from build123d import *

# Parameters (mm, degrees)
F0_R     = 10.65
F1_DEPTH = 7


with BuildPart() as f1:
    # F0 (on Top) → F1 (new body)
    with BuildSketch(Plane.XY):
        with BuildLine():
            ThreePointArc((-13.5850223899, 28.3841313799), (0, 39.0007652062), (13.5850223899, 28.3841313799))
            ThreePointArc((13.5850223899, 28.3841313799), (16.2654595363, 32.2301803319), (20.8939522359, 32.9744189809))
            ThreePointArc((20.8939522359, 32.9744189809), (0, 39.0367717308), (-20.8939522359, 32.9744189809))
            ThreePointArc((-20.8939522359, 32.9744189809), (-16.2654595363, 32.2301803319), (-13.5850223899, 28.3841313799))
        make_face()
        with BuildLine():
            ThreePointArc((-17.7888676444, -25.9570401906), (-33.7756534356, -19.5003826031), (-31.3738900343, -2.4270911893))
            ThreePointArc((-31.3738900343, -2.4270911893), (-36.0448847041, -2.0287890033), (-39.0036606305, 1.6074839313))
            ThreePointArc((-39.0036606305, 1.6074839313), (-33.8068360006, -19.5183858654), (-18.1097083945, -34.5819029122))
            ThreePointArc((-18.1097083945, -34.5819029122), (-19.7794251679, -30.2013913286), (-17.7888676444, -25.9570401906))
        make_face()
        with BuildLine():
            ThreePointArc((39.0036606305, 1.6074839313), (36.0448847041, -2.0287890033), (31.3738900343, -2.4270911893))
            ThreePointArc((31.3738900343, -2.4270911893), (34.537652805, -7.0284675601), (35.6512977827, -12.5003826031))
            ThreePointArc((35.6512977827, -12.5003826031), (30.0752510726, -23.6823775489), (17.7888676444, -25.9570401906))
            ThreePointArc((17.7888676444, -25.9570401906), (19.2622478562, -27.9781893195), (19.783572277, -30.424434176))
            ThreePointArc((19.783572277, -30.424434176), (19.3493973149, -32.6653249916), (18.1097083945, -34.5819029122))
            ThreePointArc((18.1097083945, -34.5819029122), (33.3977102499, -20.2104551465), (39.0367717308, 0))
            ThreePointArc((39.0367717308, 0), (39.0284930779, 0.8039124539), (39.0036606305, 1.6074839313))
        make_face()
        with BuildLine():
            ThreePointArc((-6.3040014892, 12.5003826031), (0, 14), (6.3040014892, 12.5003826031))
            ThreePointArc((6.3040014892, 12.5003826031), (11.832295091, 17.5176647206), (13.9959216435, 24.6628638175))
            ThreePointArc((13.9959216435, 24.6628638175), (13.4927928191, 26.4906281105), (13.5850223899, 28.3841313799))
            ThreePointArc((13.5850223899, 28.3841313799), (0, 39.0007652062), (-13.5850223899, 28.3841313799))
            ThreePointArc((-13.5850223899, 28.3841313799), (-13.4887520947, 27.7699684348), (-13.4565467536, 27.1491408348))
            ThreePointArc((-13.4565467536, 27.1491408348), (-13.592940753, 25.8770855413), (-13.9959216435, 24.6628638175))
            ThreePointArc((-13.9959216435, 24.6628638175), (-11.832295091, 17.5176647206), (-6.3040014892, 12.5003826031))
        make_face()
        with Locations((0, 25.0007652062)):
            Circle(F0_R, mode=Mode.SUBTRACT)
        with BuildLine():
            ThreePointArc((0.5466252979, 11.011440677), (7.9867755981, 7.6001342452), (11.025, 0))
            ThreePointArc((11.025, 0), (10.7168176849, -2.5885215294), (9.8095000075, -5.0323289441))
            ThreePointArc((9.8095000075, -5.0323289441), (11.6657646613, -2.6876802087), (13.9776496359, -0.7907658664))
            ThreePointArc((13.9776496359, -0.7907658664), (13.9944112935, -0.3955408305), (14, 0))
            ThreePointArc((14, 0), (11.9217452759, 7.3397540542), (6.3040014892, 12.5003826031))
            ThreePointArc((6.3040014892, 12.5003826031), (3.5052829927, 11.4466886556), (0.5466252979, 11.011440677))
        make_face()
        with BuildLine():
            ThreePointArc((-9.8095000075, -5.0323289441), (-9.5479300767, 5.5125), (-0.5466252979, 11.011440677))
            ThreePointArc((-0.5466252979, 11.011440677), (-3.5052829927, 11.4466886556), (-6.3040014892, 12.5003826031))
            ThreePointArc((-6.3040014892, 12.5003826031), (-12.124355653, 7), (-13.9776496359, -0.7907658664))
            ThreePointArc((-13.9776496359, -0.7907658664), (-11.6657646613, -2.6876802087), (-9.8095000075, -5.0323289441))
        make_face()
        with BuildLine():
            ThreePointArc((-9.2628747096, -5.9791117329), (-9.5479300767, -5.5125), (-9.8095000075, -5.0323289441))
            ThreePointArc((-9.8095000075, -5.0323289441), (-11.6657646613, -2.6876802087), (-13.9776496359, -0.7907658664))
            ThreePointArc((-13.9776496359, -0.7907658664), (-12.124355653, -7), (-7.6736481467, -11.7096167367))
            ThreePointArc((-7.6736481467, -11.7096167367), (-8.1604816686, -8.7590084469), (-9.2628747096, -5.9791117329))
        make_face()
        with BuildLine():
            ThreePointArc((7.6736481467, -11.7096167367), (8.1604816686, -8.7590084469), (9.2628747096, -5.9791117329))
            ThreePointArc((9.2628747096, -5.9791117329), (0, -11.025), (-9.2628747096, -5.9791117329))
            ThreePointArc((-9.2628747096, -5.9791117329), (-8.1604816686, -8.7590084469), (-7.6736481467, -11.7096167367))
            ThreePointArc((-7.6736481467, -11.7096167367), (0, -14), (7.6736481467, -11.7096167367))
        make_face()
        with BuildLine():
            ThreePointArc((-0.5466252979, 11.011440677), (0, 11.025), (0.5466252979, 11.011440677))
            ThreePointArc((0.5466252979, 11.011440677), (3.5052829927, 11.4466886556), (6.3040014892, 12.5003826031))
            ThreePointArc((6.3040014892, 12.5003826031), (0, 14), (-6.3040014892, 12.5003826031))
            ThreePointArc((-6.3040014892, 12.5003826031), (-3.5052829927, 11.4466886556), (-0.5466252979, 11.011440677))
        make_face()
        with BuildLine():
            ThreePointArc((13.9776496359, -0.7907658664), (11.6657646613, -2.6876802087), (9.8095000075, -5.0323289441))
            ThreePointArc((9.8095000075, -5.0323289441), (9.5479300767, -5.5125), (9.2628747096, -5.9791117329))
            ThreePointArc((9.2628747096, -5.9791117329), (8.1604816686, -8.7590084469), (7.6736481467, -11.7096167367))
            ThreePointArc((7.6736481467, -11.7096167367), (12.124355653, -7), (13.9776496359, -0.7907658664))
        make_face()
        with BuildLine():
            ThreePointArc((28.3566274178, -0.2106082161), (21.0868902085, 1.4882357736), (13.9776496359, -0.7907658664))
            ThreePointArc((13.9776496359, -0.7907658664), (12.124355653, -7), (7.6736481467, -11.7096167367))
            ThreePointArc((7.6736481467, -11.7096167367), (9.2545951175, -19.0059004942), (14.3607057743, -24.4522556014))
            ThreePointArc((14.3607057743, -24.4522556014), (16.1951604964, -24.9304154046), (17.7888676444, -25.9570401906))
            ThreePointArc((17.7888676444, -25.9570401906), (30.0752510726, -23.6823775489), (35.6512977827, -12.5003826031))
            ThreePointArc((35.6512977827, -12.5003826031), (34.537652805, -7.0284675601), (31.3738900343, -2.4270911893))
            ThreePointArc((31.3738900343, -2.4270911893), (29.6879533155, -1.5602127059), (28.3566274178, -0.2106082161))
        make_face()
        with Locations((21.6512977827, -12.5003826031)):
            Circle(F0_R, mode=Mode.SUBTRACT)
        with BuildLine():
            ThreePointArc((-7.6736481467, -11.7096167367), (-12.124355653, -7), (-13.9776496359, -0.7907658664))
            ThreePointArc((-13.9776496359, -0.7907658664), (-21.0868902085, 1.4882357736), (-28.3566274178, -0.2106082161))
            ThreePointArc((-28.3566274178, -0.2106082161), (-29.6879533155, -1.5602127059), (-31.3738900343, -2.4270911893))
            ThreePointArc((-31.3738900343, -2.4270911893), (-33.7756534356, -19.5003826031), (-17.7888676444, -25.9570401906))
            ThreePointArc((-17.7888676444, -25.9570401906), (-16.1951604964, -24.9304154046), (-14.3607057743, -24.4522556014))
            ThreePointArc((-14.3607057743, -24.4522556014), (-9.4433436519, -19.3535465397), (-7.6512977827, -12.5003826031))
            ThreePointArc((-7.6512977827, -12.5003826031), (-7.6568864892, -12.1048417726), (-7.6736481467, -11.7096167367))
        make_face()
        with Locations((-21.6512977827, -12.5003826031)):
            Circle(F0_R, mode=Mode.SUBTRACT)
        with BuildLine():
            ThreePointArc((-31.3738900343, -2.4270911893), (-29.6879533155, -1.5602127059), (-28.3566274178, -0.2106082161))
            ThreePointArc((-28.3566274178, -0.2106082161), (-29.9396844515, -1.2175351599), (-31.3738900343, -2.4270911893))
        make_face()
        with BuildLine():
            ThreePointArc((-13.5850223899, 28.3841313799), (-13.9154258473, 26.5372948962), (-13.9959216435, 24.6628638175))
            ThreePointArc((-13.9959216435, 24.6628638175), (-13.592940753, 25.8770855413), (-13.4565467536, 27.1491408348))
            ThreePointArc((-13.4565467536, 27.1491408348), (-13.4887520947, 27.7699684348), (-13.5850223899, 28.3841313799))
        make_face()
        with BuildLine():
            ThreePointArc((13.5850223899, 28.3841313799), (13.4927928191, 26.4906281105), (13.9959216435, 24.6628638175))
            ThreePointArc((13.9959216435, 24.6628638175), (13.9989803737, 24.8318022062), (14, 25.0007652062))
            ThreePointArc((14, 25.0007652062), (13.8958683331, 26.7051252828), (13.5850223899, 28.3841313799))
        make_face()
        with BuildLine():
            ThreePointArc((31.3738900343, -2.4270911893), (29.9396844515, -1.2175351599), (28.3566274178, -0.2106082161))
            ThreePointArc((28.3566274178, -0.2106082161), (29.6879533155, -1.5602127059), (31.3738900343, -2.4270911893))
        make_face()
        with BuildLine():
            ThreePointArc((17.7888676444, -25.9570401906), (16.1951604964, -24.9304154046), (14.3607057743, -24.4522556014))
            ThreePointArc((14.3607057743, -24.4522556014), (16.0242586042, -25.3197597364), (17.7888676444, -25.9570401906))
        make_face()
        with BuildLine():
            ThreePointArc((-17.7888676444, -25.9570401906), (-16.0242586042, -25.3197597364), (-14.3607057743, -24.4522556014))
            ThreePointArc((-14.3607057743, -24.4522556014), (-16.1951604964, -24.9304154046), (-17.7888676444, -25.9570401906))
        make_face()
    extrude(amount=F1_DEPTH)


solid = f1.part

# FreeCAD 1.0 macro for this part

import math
import FreeCAD as App
import Part
import Sketcher
from FreeCAD import Vector

doc = App.newDocument("Part")
body = doc.addObject("PartDesign::Body", "Body")

sketch1 = doc.addObject("Sketcher::SketchObject", "Sketch")
body.addObject(sketch1)
sketch1.AttachmentSupport = (doc.XY_Plane, [""])
sketch1.MapMode = "FlatFace"
sketch1.addGeometry(Part.ArcOfCircle(Part.Circle(Vector(19.46, 27.15, 0), Vector(0, 0, 1), 6), math.radians(76), math.radians(168)), False)
sketch1.addGeometry(Part.ArcOfCircle(Part.Circle(Vector(0, 0, 0), Vector(0, 0, 1), 39.04), math.radians(58), math.radians(122)), False)
sketch1.addGeometry(Part.ArcOfCircle(Part.Circle(Vector(-19.46, 27.15, 0), Vector(0, 0, 1), 6), math.radians(12), math.radians(104)), False)
sketch1.addGeometry(Part.ArcOfCircle(Part.Circle(Vector(0, 25, 0), Vector(0, 0, 1), 14), math.radians(166.01), math.radians(181.38)), False)
sketch1.addGeometry(Part.ArcOfCircle(Part.Circle(Vector(0, 25, 0), Vector(0, 0, 1), 14), math.radians(-179), math.radians(-117)), False)
sketch1.addGeometry(Part.ArcOfCircle(Part.Circle(Vector(0, 0, 0), Vector(0, 0, 1), 14), math.radians(117), math.radians(183)), False)
sketch1.addGeometry(Part.ArcOfCircle(Part.Circle(Vector(-21.65, -12.5, 0), Vector(0, 0, 1), 14), math.radians(57), math.radians(119)), False)
sketch1.addGeometry(Part.ArcOfCircle(Part.Circle(Vector(-21.65, -12.5, 0), Vector(0, 0, 1), 14), math.radians(118.62), math.radians(133.99)), False)
sketch1.addGeometry(Part.ArcOfCircle(Part.Circle(Vector(-33.24, 3.28, 0), Vector(0, 0, 1), 6), math.radians(-164), math.radians(-72)), False)
sketch1.addGeometry(Part.ArcOfCircle(Part.Circle(Vector(0, 0, 0), Vector(0, 0, 1), 39.04), math.radians(178), math.radians(242)), False)
sketch1.addGeometry(Part.ArcOfCircle(Part.Circle(Vector(-13.78, -30.42, 0), Vector(0, 0, 1), 6), math.radians(132), math.radians(224)), False)
sketch1.addGeometry(Part.ArcOfCircle(Part.Circle(Vector(-21.65, -12.5, 0), Vector(0, 0, 1), 14), math.radians(-73.99), math.radians(-58.62)), False)
sketch1.addGeometry(Part.ArcOfCircle(Part.Circle(Vector(-21.65, -12.5, 0), Vector(0, 0, 1), 14), math.radians(-59), math.radians(0)), False)
sketch1.addGeometry(Part.ArcOfCircle(Part.Circle(Vector(-21.65, -12.5, 0), Vector(0, 0, 1), 14), math.radians(0), math.radians(3.24)), False)
sketch1.addGeometry(Part.ArcOfCircle(Part.Circle(Vector(0, 0, 0), Vector(0, 0, 1), 14), math.radians(-123), math.radians(-57)), False)
sketch1.addGeometry(Part.ArcOfCircle(Part.Circle(Vector(21.65, -12.5, 0), Vector(0, 0, 1), 14), math.radians(177), math.radians(239)), False)
sketch1.addGeometry(Part.ArcOfCircle(Part.Circle(Vector(21.65, -12.5, 0), Vector(0, 0, 1), 14), math.radians(-121.38), math.radians(-106.01)), False)
sketch1.addGeometry(Part.ArcOfCircle(Part.Circle(Vector(13.78, -30.42, 0), Vector(0, 0, 1), 6), math.radians(0), math.radians(48)), False)
sketch1.addGeometry(Part.ArcOfCircle(Part.Circle(Vector(13.78, -30.42, 0), Vector(0, 0, 1), 6), math.radians(-44), math.radians(0)), False)
sketch1.addGeometry(Part.ArcOfCircle(Part.Circle(Vector(0, 0, 0), Vector(0, 0, 1), 39.04), math.radians(-62), math.radians(0)), False)
sketch1.addGeometry(Part.ArcOfCircle(Part.Circle(Vector(0, 0, 0), Vector(0, 0, 1), 39.04), math.radians(0), math.radians(2.36)), False)
sketch1.addGeometry(Part.ArcOfCircle(Part.Circle(Vector(33.24, 3.28, 0), Vector(0, 0, 1), 6), math.radians(-108), math.radians(-16)), False)
sketch1.addGeometry(Part.ArcOfCircle(Part.Circle(Vector(21.65, -12.5, 0), Vector(0, 0, 1), 14), math.radians(46.01), math.radians(61.38)), False)
sketch1.addGeometry(Part.ArcOfCircle(Part.Circle(Vector(21.65, -12.5, 0), Vector(0, 0, 1), 14), math.radians(61), math.radians(123)), False)
sketch1.addGeometry(Part.ArcOfCircle(Part.Circle(Vector(0, 0, 0), Vector(0, 0, 1), 14), math.radians(-3.24), math.radians(0)), False)
sketch1.addGeometry(Part.ArcOfCircle(Part.Circle(Vector(0, 0, 0), Vector(0, 0, 1), 14), math.radians(0), math.radians(63)), False)
sketch1.addGeometry(Part.ArcOfCircle(Part.Circle(Vector(0, 25, 0), Vector(0, 0, 1), 14), math.radians(-63), math.radians(-1)), False)
sketch1.addGeometry(Part.ArcOfCircle(Part.Circle(Vector(0, 25, 0), Vector(0, 0, 1), 14), math.radians(-1.38), math.radians(0)), False)
sketch1.addGeometry(Part.ArcOfCircle(Part.Circle(Vector(0, 25, 0), Vector(0, 0, 1), 14), math.radians(0), math.radians(13.99)), False)
sketch1.addGeometry(Part.Circle(Vector(-21.65, -12.5, 0), Vector(0, 0, 1), 10.65), False)
sketch1.addGeometry(Part.Circle(Vector(21.65, -12.5, 0), Vector(0, 0, 1), 10.65), False)
sketch1.addGeometry(Part.ArcOfCircle(Part.Circle(Vector(0, 0, 0), Vector(0, 0, 1), 11.03), math.radians(-147), math.radians(-33)), False)
sketch1.addGeometry(Part.ArcOfCircle(Part.Circle(Vector(0, 0, 0), Vector(0, 0, 1), 11.02), math.radians(-152.84), math.radians(-147.16)), False)
sketch1.addGeometry(Part.ArcOfCircle(Part.Circle(Vector(0, 0, 0), Vector(0, 0, 1), 11.03), math.radians(93), math.radians(207)), False)
sketch1.addGeometry(Part.ArcOfCircle(Part.Circle(Vector(0, 0, 0), Vector(0, 0, 1), 11.02), math.radians(87.16), math.radians(92.84)), False)
sketch1.addGeometry(Part.ArcOfCircle(Part.Circle(Vector(0, 0, 0), Vector(0, 0, 1), 11.03), math.radians(0), math.radians(87)), False)
sketch1.addGeometry(Part.ArcOfCircle(Part.Circle(Vector(0, 0, 0), Vector(0, 0, 1), 11.03), math.radians(-27), math.radians(0)), False)
sketch1.addGeometry(Part.ArcOfCircle(Part.Circle(Vector(0, 0, 0), Vector(0, 0, 1), 11.02), math.radians(-32.84), math.radians(-27.16)), False)
sketch1.addGeometry(Part.Circle(Vector(0, 25, 0), Vector(0, 0, 1), 10.65), False)
sketch1.addConstraint(Sketcher.Constraint("Coincident", 0, 1, 1, 1))
sketch1.addConstraint(Sketcher.Constraint("Coincident", 1, 2, 2, 2))
sketch1.addConstraint(Sketcher.Constraint("Coincident", 2, 1, 3, 1))
sketch1.addConstraint(Sketcher.Constraint("Tangent", 3, 2, 4, 1))
sketch1.addConstraint(Sketcher.Constraint("Coincident", 4, 2, 5, 1))
sketch1.addConstraint(Sketcher.Constraint("Coincident", 5, 2, 6, 1))
sketch1.addConstraint(Sketcher.Constraint("Tangent", 6, 2, 7, 1))
sketch1.addConstraint(Sketcher.Constraint("Coincident", 7, 2, 8, 2))
sketch1.addConstraint(Sketcher.Constraint("Coincident", 8, 1, 9, 1))
sketch1.addConstraint(Sketcher.Constraint("Coincident", 9, 2, 10, 2))
sketch1.addConstraint(Sketcher.Constraint("Coincident", 10, 1, 11, 1))
sketch1.addConstraint(Sketcher.Constraint("Tangent", 11, 2, 12, 1))
sketch1.addConstraint(Sketcher.Constraint("Tangent", 12, 2, 13, 1))
sketch1.addConstraint(Sketcher.Constraint("Coincident", 13, 2, 14, 1))
sketch1.addConstraint(Sketcher.Constraint("Coincident", 14, 2, 15, 1))
sketch1.addConstraint(Sketcher.Constraint("Tangent", 15, 2, 16, 1))
sketch1.addConstraint(Sketcher.Constraint("Coincident", 16, 2, 17, 2))
sketch1.addConstraint(Sketcher.Constraint("Tangent", 17, 1, 18, 2))
sketch1.addConstraint(Sketcher.Constraint("Coincident", 18, 1, 19, 1))
sketch1.addConstraint(Sketcher.Constraint("Tangent", 19, 2, 20, 1))
sketch1.addConstraint(Sketcher.Constraint("Coincident", 20, 2, 21, 2))
sketch1.addConstraint(Sketcher.Constraint("Coincident", 21, 1, 22, 1))
sketch1.addConstraint(Sketcher.Constraint("Tangent", 22, 2, 23, 1))
sketch1.addConstraint(Sketcher.Constraint("Coincident", 23, 2, 24, 1))
sketch1.addConstraint(Sketcher.Constraint("Tangent", 24, 2, 25, 1))
sketch1.addConstraint(Sketcher.Constraint("Coincident", 25, 2, 26, 1))
sketch1.addConstraint(Sketcher.Constraint("Tangent", 26, 2, 27, 1))
sketch1.addConstraint(Sketcher.Constraint("Tangent", 27, 2, 28, 1))
sketch1.addConstraint(Sketcher.Constraint("Coincident", 28, 2, 0, 2))
sketch1.addConstraint(Sketcher.Constraint("Tangent", 31, 1, 32, 2))
sketch1.addConstraint(Sketcher.Constraint("Tangent", 32, 1, 33, 2))
sketch1.addConstraint(Sketcher.Constraint("Tangent", 33, 1, 34, 2))
sketch1.addConstraint(Sketcher.Constraint("Tangent", 34, 1, 35, 2))
sketch1.addConstraint(Sketcher.Constraint("Tangent", 35, 1, 36, 2))
sketch1.addConstraint(Sketcher.Constraint("Tangent", 36, 1, 37, 2))
sketch1.addConstraint(Sketcher.Constraint("Tangent", 37, 1, 31, 2))
sketch1.addConstraint(Sketcher.Constraint("Coincident", 1, 3, -1, 1))
sketch1.addConstraint(Sketcher.Constraint("Coincident", 5, 3, -1, 1))
sketch1.addConstraint(Sketcher.Constraint("Coincident", 9, 3, -1, 1))
sketch1.addConstraint(Sketcher.Constraint("Coincident", 14, 3, -1, 1))
sketch1.addConstraint(Sketcher.Constraint("Coincident", 19, 3, -1, 1))
sketch1.addConstraint(Sketcher.Constraint("Coincident", 24, 3, -1, 1))
sketch1.addConstraint(Sketcher.Constraint("Coincident", 31, 3, -1, 1))
sketch1.addConstraint(Sketcher.Constraint("Coincident", 33, 3, -1, 1))
sketch1.addConstraint(Sketcher.Constraint("Coincident", 35, 3, -1, 1))
sketch1.addConstraint(Sketcher.Constraint("Coincident", 11, 3, 6, 3))
sketch1.addConstraint(Sketcher.Constraint("Coincident", 13, 3, 6, 3))
sketch1.addConstraint(Sketcher.Constraint("Coincident", 22, 3, 15, 3))
sketch1.addConstraint(Sketcher.Constraint("Coincident", 26, 3, 3, 3))
sketch1.addConstraint(Sketcher.Constraint("Coincident", 28, 3, 3, 3))
sketch1.addConstraint(Sketcher.Constraint("Coincident", 29, 3, 6, 3))
sketch1.addConstraint(Sketcher.Constraint("Coincident", 30, 3, 15, 3))
sketch1.addConstraint(Sketcher.Constraint("Coincident", 38, 3, 3, 3))
sketch1.addConstraint(Sketcher.Constraint("Equal", 0, 2))
sketch1.addConstraint(Sketcher.Constraint("Equal", 3, 4))
sketch1.addConstraint(Sketcher.Constraint("Equal", 4, 5))
sketch1.addConstraint(Sketcher.Constraint("Equal", 5, 6))
sketch1.addConstraint(Sketcher.Constraint("Equal", 6, 7))
sketch1.addConstraint(Sketcher.Constraint("Equal", 2, 8))
sketch1.addConstraint(Sketcher.Constraint("Equal", 1, 9))
sketch1.addConstraint(Sketcher.Constraint("Equal", 8, 10))
sketch1.addConstraint(Sketcher.Constraint("Equal", 7, 11))
sketch1.addConstraint(Sketcher.Constraint("Equal", 13, 14))
sketch1.addConstraint(Sketcher.Constraint("Equal", 14, 15))
sketch1.addConstraint(Sketcher.Constraint("Equal", 15, 16))
sketch1.addConstraint(Sketcher.Constraint("Equal", 10, 17))
sketch1.addConstraint(Sketcher.Constraint("Equal", 17, 18))
sketch1.addConstraint(Sketcher.Constraint("Equal", 9, 19))
sketch1.addConstraint(Sketcher.Constraint("Equal", 19, 20))
sketch1.addConstraint(Sketcher.Constraint("Equal", 18, 21))
sketch1.addConstraint(Sketcher.Constraint("Equal", 16, 22))
sketch1.addConstraint(Sketcher.Constraint("Equal", 22, 23))
sketch1.addConstraint(Sketcher.Constraint("Equal", 23, 24))
sketch1.addConstraint(Sketcher.Constraint("Equal", 24, 25))
sketch1.addConstraint(Sketcher.Constraint("Equal", 25, 26))
sketch1.addConstraint(Sketcher.Constraint("Equal", 29, 30))
sketch1.addConstraint(Sketcher.Constraint("Equal", 30, 38))
sketch1.addConstraint(Sketcher.Constraint("Symmetric", 0, 3, 2, 3, -2))
sketch1.addConstraint(Sketcher.Constraint("Symmetric", 6, 3, 15, 3, -2))
sketch1.addConstraint(Sketcher.Constraint("Symmetric", 10, 3, 17, 3, -2))
sketch1.addConstraint(Sketcher.Constraint("Symmetric", 8, 3, 21, 3, -2))
sketch1.addConstraint(Sketcher.Constraint("Symmetric", 3, 2, 26, 2, -2))
sketch1.addConstraint(Sketcher.Constraint("PointOnObject", 19, 2, -1))
sketch1.addConstraint(Sketcher.Constraint("PointOnObject", 24, 2, -1))
sketch1.addConstraint(Sketcher.Constraint("PointOnObject", 35, 1, -1))
sketch1.addConstraint(Sketcher.Constraint("Horizontal", 30, 3, 12, 2))
sketch1.addConstraint(Sketcher.Constraint("Horizontal", 11, 2, 15, 2))
sketch1.addConstraint(Sketcher.Constraint("Horizontal", 18, 3, 17, 1))
sketch1.addConstraint(Sketcher.Constraint("Horizontal", 6, 2, 22, 2))
sketch1.addConstraint(Sketcher.Constraint("Horizontal", 38, 3, 27, 2))
sketch1.addConstraint(Sketcher.Constraint("Horizontal", 33, 1, 34, 1))
sketch1.addConstraint(Sketcher.Constraint("Horizontal", 32, 1, 36, 1))
sketch1.addConstraint(Sketcher.Constraint("Horizontal", 31, 1, 37, 1))
sketch1.addConstraint(Sketcher.Constraint("Radius", 0, 6.0))
sketch1.addConstraint(Sketcher.Constraint("Radius", 3, 14.0))
sketch1.addConstraint(Sketcher.Constraint("Diameter", 29, 21.3))
sketch1.addConstraint(Sketcher.Constraint("Radius", 31, 11.025))
sketch1.addConstraint(Sketcher.Constraint("Radius", 1, 39.036772))
sketch1.addConstraint(Sketcher.Constraint("DistanceX", 4, 2, -1, 1, 6.304001))
sketch1.addConstraint(Sketcher.Constraint("DistanceX", 32, 1, -1, 1, 9.8095))
sketch1.addConstraint(Sketcher.Constraint("DistanceY", -1, 1, 0, 3, 27.149141))
sketch1.addConstraint(Sketcher.Constraint("DistanceX", 8, 3, -1, 1, 33.240119))
sketch1.addConstraint(Sketcher.Constraint("DistanceY", -1, 1, 0, 1, 32.974419))
sketch1.addConstraint(Sketcher.Constraint("DistanceX", 3, 2, -1, 1, 13.995922))
sketch1.addConstraint(Sketcher.Constraint("DistanceX", 5, 2, -1, 1, 13.97765))
sketch1.addConstraint(Sketcher.Constraint("DistanceY", 6, 2, -1, 1, 0.210608))
sketch1.addConstraint(Sketcher.Constraint("DistanceX", 7, 2, -1, 1, 31.37389))
sketch1.addConstraint(Sketcher.Constraint("DistanceY", 7, 2, -1, 1, 2.427091))
sketch1.addConstraint(Sketcher.Constraint("DistanceX", 9, 2, -1, 1, 18.109708))
sketch1.addConstraint(Sketcher.Constraint("DistanceY", 10, 1, -1, 1, 25.95704))
sketch1.addConstraint(Sketcher.Constraint("DistanceY", 31, 1, -1, 1, 5.979112))
sketch1.addConstraint(Sketcher.Constraint("DistanceY", -1, 1, 33, 1, 11.011441))
sketch1.addConstraint(Sketcher.Constraint("DistanceX", 11, 2, -1, 1, 14.360706))
pad1 = doc.addObject("PartDesign::Pad", "Pad")
body.addObject(pad1)
pad1.Profile = sketch1
pad1.Length = 7

doc.recompute()
